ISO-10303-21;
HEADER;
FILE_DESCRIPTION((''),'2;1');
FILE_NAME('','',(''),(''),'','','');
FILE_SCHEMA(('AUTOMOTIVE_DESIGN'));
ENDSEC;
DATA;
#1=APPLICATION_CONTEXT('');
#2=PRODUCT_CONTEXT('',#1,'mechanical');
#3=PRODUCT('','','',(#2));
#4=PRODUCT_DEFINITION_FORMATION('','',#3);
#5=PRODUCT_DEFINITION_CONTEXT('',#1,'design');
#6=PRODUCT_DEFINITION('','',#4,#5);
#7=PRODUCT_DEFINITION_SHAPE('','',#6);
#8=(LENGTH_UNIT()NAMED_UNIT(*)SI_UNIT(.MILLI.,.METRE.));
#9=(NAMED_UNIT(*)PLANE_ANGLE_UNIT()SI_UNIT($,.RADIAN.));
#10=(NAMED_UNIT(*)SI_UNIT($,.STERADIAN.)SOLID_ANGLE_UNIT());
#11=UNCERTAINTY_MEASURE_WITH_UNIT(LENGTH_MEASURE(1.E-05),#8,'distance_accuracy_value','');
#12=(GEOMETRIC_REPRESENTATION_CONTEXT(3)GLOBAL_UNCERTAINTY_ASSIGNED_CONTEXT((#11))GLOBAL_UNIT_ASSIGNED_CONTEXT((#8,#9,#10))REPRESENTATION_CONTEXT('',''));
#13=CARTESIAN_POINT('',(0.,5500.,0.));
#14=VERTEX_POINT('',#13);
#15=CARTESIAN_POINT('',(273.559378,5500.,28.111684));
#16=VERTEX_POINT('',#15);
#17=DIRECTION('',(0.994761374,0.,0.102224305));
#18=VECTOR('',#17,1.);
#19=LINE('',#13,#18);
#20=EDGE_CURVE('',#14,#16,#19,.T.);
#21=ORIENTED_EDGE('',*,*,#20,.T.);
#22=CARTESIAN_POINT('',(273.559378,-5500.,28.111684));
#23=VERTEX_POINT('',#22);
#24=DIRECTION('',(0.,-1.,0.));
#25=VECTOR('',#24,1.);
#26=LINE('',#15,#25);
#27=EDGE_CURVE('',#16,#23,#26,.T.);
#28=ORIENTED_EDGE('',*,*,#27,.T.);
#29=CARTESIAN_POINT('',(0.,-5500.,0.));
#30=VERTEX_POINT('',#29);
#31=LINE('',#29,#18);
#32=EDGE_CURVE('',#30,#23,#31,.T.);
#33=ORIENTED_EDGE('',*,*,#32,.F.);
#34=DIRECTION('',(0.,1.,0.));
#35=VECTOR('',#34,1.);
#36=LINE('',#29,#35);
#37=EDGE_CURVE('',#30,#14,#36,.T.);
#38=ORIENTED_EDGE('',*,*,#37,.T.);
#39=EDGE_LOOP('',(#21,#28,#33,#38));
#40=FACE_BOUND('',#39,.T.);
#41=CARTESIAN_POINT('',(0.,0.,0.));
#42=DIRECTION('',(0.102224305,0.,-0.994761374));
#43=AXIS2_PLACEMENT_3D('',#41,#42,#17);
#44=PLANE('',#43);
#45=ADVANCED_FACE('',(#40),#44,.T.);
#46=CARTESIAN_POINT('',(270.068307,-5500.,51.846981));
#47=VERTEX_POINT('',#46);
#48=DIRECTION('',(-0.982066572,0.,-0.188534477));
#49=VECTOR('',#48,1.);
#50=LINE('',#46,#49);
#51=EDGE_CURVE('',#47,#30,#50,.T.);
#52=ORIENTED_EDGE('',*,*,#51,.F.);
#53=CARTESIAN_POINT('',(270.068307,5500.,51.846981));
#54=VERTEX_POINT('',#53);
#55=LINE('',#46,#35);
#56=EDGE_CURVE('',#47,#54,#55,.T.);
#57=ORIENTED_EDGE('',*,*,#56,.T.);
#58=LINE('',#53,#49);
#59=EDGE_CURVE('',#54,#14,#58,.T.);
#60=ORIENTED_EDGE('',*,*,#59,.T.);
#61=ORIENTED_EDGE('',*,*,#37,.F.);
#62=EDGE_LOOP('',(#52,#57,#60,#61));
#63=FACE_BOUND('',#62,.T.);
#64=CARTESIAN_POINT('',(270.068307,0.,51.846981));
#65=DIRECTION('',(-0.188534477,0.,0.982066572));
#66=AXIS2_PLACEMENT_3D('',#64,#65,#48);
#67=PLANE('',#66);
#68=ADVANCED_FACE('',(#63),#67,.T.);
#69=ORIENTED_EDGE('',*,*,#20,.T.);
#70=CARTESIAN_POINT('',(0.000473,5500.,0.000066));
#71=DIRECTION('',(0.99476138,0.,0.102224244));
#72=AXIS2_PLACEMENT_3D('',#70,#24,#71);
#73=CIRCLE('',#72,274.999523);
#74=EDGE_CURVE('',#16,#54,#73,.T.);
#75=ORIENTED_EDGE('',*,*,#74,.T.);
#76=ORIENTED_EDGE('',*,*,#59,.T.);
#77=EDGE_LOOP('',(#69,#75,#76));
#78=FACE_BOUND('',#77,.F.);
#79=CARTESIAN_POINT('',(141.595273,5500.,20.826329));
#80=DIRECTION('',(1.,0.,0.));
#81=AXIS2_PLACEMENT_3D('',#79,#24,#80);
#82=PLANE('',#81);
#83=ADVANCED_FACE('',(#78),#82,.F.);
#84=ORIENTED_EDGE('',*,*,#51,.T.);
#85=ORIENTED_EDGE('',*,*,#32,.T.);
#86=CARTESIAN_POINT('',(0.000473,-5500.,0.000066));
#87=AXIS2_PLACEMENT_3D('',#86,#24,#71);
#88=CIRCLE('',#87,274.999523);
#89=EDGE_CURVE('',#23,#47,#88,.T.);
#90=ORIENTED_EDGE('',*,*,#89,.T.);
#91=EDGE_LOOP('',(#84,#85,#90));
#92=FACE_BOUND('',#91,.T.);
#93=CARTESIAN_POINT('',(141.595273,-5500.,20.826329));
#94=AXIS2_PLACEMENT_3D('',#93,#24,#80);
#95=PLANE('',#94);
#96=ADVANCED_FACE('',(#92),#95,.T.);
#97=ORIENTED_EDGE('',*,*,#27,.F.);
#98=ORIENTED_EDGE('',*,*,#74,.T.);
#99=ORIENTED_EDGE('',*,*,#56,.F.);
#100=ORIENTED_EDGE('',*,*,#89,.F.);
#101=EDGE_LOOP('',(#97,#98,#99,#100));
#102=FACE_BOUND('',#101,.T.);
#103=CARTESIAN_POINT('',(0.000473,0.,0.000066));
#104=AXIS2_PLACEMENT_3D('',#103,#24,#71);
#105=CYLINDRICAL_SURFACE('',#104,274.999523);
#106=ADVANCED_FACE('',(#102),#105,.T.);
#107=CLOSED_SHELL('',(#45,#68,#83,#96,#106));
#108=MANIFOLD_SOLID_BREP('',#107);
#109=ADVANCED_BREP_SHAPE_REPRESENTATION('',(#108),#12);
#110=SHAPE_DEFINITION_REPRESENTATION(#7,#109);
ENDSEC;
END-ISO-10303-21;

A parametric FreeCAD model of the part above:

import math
import FreeCAD as App
import Part
import Sketcher

doc = App.newDocument("Part")
body = doc.addObject("PartDesign::Body", "Body")

# Sketch on XZ plane
sketch1 = body.newObject("Sketcher::SketchObject", "Sketch")
sketch1.AttachmentSupport = (doc.getObject("XZ_Plane"), [""])
sketch1.MapMode = "FlatFace"
sketch1.addGeometry(Part.LineSegment(App.Vector(0, 0, 0), App.Vector(274, 28, 0)), False)
sketch1.addGeometry(Part.ArcOfCircle(Part.Circle(App.Vector(0, 0, 0), App.Vector(0, 0, 1), 275), math.radians(5.87), math.radians(10.87)), False)
sketch1.addGeometry(Part.LineSegment(App.Vector(270, 52, 0), App.Vector(0, 0, 0)), False)
sketch1.addConstraint(Sketcher.Constraint("Coincident", 0, 2, 1, 1))
sketch1.addConstraint(Sketcher.Constraint("Coincident", 1, 2, 2, 1))
sketch1.addConstraint(Sketcher.Constraint("Coincident", 2, 2, 0, 1))
sketch1.addConstraint(Sketcher.Constraint("Coincident", 2, 2, -1, 1))
sketch1.addConstraint(Sketcher.Constraint("Equal", 0, 2))
sketch1.addConstraint(Sketcher.Constraint("Distance", 0, 275.0))
sketch1.addConstraint(Sketcher.Constraint("Radius", 1, 274.999523))
sketch1.addConstraint(Sketcher.Constraint("DistanceX", -1, 1, 0, 2, 273.559378))
sketch1.addConstraint(Sketcher.Constraint("DistanceY", -1, 1, 1, 2, 51.846981))
pad1 = body.newObject("PartDesign::Pad", "Pad")
pad1.Profile = sketch1
pad1.Length = 11000
pad1.Midplane = True

doc.recompute()
